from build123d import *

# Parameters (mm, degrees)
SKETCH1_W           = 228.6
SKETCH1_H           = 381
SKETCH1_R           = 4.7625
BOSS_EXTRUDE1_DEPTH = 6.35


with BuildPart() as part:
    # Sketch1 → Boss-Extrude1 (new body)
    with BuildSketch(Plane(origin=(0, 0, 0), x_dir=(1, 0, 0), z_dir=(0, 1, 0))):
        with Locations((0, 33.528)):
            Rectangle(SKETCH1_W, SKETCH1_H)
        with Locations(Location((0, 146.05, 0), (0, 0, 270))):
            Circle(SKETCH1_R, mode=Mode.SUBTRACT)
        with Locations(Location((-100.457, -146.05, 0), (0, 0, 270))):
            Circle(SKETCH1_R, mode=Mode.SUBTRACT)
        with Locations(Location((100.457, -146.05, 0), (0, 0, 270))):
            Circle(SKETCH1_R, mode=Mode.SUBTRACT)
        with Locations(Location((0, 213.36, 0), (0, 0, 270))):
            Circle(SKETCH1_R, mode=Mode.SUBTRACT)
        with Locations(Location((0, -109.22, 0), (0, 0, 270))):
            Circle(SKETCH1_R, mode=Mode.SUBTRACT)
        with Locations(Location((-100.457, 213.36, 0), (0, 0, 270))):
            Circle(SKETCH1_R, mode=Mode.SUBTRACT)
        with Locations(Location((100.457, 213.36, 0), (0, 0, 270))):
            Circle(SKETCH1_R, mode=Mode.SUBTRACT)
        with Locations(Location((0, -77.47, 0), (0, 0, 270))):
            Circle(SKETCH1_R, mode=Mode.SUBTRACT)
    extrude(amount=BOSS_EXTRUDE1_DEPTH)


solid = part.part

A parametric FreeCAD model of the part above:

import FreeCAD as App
import Part
import Sketcher
from FreeCAD import Vector
Q = App.Units.Quantity

doc = App.newDocument("Part")
body = doc.addObject("PartDesign::Body", "Body")

# Sketch on XZ plane
sketch1 = body.newObject("Sketcher::SketchObject", "Sketch")
sketch1.AttachmentSupport = (doc.getObject("XZ_Plane"), [""])
sketch1.MapMode = "FlatFace"
sketch1.addGeometry([
    Part.LineSegment(Vector(-114.3, -224.028, 0), Vector(-114.3, 156.972, 0)),  # 0
    Part.LineSegment(Vector(-114.3, 156.972, 0), Vector(114.3, 156.972, 0)),  # 1
    Part.LineSegment(Vector(114.3, 156.972, 0), Vector(114.3, -224.028, 0)),  # 2
    Part.LineSegment(Vector(114.3, -224.028, 0), Vector(-114.3, -224.028, 0)),  # 3
    Part.Circle(Vector(-100.457, 146.05, 0), Vector(0, 0, 1), 4.7625),  # 4
    Part.Circle(Vector(0, 109.22, 0), Vector(0, 0, 1), 4.7625),  # 5
    Part.Circle(Vector(0, 77.47, 0), Vector(0, 0, 1), 4.7625),  # 6
    Part.Circle(Vector(100.457, 146.05, 0), Vector(0, 0, 1), 4.7625),  # 7
    Part.Circle(Vector(-100.457, -213.36, 0), Vector(0, 0, 1), 4.7625),  # 8
    Part.Circle(Vector(0, -146.05, 0), Vector(0, 0, 1), 4.7625),  # 9
    Part.Circle(Vector(0, -213.36, 0), Vector(0, 0, 1), 4.7625),  # 10
    Part.Circle(Vector(100.457, -213.36, 0), Vector(0, 0, 1), 4.7625),  # 11
], False)
sketch1.addConstraint([
    Sketcher.Constraint("Coincident", 0, 2, 1, 1),
    Sketcher.Constraint("Coincident", 1, 2, 2, 1),
    Sketcher.Constraint("Coincident", 2, 2, 3, 1),
    Sketcher.Constraint("Coincident", 3, 2, 0, 1),
    Sketcher.Constraint("Vertical", 0),
    Sketcher.Constraint("Horizontal", 1),
    Sketcher.Constraint("Vertical", 2),
    Sketcher.Constraint("Horizontal", 3),
    Sketcher.Constraint("Equal", 4, 5),
    Sketcher.Constraint("Equal", 5, 6),
    Sketcher.Constraint("Equal", 6, 7),
    Sketcher.Constraint("Equal", 7, 8),
    Sketcher.Constraint("Equal", 8, 9),
    Sketcher.Constraint("Equal", 9, 10),
    Sketcher.Constraint("Equal", 10, 11),
    Sketcher.Constraint("Symmetric", 4, 3, 7, 3, -2),
    Sketcher.Constraint("Symmetric", 8, 3, 11, 3, -2),
    Sketcher.Constraint("PointOnObject", 5, 3, -2),
    Sketcher.Constraint("PointOnObject", 6, 3, -2),
    Sketcher.Constraint("PointOnObject", 9, 3, -2),
    Sketcher.Constraint("PointOnObject", 10, 3, -2),
    Sketcher.Constraint("Horizontal", 8, 3, 10, 3),
    Sketcher.Constraint("Vertical", 4, 3, 8, 3),
    Sketcher.Constraint("DistanceX", 1, 1, 1, 2, Q("9 in")),
    Sketcher.Constraint("DistanceY", 0, 1, 0, 2, Q("15 in")),
    Sketcher.Constraint("Diameter", 4, Q("0.375 in")),
    Sketcher.Constraint("DistanceY", -1, 1, 5, 3, Q("4.3 in")),
    Sketcher.Constraint("DistanceY", 8, 3, -1, 1, Q("8.4 in")),
    Sketcher.Constraint("DistanceX", 0, 2, -1, 1, Q("4.5 in")),
    Sketcher.Constraint("DistanceY", 6, 3, 4, 3, Q("2.7 in")),
    Sketcher.Constraint("DistanceY", 9, 3, 6, 3, Q("8.8 in")),
    Sketcher.Constraint("DistanceY", -1, 1, 4, 3, Q("5.75 in")),
    Sketcher.Constraint("DistanceY", -1, 1, 0, 2, Q("6.18 in")),
    Sketcher.Constraint("DistanceX", 4, 3, 7, 3, Q("7.91 in")),
])
pad1 = body.newObject("PartDesign::Pad", "Pad")
pad1.Profile = sketch1
pad1.Length = Q("0.25 in")
pad1.Reversed = True

doc.recompute()
